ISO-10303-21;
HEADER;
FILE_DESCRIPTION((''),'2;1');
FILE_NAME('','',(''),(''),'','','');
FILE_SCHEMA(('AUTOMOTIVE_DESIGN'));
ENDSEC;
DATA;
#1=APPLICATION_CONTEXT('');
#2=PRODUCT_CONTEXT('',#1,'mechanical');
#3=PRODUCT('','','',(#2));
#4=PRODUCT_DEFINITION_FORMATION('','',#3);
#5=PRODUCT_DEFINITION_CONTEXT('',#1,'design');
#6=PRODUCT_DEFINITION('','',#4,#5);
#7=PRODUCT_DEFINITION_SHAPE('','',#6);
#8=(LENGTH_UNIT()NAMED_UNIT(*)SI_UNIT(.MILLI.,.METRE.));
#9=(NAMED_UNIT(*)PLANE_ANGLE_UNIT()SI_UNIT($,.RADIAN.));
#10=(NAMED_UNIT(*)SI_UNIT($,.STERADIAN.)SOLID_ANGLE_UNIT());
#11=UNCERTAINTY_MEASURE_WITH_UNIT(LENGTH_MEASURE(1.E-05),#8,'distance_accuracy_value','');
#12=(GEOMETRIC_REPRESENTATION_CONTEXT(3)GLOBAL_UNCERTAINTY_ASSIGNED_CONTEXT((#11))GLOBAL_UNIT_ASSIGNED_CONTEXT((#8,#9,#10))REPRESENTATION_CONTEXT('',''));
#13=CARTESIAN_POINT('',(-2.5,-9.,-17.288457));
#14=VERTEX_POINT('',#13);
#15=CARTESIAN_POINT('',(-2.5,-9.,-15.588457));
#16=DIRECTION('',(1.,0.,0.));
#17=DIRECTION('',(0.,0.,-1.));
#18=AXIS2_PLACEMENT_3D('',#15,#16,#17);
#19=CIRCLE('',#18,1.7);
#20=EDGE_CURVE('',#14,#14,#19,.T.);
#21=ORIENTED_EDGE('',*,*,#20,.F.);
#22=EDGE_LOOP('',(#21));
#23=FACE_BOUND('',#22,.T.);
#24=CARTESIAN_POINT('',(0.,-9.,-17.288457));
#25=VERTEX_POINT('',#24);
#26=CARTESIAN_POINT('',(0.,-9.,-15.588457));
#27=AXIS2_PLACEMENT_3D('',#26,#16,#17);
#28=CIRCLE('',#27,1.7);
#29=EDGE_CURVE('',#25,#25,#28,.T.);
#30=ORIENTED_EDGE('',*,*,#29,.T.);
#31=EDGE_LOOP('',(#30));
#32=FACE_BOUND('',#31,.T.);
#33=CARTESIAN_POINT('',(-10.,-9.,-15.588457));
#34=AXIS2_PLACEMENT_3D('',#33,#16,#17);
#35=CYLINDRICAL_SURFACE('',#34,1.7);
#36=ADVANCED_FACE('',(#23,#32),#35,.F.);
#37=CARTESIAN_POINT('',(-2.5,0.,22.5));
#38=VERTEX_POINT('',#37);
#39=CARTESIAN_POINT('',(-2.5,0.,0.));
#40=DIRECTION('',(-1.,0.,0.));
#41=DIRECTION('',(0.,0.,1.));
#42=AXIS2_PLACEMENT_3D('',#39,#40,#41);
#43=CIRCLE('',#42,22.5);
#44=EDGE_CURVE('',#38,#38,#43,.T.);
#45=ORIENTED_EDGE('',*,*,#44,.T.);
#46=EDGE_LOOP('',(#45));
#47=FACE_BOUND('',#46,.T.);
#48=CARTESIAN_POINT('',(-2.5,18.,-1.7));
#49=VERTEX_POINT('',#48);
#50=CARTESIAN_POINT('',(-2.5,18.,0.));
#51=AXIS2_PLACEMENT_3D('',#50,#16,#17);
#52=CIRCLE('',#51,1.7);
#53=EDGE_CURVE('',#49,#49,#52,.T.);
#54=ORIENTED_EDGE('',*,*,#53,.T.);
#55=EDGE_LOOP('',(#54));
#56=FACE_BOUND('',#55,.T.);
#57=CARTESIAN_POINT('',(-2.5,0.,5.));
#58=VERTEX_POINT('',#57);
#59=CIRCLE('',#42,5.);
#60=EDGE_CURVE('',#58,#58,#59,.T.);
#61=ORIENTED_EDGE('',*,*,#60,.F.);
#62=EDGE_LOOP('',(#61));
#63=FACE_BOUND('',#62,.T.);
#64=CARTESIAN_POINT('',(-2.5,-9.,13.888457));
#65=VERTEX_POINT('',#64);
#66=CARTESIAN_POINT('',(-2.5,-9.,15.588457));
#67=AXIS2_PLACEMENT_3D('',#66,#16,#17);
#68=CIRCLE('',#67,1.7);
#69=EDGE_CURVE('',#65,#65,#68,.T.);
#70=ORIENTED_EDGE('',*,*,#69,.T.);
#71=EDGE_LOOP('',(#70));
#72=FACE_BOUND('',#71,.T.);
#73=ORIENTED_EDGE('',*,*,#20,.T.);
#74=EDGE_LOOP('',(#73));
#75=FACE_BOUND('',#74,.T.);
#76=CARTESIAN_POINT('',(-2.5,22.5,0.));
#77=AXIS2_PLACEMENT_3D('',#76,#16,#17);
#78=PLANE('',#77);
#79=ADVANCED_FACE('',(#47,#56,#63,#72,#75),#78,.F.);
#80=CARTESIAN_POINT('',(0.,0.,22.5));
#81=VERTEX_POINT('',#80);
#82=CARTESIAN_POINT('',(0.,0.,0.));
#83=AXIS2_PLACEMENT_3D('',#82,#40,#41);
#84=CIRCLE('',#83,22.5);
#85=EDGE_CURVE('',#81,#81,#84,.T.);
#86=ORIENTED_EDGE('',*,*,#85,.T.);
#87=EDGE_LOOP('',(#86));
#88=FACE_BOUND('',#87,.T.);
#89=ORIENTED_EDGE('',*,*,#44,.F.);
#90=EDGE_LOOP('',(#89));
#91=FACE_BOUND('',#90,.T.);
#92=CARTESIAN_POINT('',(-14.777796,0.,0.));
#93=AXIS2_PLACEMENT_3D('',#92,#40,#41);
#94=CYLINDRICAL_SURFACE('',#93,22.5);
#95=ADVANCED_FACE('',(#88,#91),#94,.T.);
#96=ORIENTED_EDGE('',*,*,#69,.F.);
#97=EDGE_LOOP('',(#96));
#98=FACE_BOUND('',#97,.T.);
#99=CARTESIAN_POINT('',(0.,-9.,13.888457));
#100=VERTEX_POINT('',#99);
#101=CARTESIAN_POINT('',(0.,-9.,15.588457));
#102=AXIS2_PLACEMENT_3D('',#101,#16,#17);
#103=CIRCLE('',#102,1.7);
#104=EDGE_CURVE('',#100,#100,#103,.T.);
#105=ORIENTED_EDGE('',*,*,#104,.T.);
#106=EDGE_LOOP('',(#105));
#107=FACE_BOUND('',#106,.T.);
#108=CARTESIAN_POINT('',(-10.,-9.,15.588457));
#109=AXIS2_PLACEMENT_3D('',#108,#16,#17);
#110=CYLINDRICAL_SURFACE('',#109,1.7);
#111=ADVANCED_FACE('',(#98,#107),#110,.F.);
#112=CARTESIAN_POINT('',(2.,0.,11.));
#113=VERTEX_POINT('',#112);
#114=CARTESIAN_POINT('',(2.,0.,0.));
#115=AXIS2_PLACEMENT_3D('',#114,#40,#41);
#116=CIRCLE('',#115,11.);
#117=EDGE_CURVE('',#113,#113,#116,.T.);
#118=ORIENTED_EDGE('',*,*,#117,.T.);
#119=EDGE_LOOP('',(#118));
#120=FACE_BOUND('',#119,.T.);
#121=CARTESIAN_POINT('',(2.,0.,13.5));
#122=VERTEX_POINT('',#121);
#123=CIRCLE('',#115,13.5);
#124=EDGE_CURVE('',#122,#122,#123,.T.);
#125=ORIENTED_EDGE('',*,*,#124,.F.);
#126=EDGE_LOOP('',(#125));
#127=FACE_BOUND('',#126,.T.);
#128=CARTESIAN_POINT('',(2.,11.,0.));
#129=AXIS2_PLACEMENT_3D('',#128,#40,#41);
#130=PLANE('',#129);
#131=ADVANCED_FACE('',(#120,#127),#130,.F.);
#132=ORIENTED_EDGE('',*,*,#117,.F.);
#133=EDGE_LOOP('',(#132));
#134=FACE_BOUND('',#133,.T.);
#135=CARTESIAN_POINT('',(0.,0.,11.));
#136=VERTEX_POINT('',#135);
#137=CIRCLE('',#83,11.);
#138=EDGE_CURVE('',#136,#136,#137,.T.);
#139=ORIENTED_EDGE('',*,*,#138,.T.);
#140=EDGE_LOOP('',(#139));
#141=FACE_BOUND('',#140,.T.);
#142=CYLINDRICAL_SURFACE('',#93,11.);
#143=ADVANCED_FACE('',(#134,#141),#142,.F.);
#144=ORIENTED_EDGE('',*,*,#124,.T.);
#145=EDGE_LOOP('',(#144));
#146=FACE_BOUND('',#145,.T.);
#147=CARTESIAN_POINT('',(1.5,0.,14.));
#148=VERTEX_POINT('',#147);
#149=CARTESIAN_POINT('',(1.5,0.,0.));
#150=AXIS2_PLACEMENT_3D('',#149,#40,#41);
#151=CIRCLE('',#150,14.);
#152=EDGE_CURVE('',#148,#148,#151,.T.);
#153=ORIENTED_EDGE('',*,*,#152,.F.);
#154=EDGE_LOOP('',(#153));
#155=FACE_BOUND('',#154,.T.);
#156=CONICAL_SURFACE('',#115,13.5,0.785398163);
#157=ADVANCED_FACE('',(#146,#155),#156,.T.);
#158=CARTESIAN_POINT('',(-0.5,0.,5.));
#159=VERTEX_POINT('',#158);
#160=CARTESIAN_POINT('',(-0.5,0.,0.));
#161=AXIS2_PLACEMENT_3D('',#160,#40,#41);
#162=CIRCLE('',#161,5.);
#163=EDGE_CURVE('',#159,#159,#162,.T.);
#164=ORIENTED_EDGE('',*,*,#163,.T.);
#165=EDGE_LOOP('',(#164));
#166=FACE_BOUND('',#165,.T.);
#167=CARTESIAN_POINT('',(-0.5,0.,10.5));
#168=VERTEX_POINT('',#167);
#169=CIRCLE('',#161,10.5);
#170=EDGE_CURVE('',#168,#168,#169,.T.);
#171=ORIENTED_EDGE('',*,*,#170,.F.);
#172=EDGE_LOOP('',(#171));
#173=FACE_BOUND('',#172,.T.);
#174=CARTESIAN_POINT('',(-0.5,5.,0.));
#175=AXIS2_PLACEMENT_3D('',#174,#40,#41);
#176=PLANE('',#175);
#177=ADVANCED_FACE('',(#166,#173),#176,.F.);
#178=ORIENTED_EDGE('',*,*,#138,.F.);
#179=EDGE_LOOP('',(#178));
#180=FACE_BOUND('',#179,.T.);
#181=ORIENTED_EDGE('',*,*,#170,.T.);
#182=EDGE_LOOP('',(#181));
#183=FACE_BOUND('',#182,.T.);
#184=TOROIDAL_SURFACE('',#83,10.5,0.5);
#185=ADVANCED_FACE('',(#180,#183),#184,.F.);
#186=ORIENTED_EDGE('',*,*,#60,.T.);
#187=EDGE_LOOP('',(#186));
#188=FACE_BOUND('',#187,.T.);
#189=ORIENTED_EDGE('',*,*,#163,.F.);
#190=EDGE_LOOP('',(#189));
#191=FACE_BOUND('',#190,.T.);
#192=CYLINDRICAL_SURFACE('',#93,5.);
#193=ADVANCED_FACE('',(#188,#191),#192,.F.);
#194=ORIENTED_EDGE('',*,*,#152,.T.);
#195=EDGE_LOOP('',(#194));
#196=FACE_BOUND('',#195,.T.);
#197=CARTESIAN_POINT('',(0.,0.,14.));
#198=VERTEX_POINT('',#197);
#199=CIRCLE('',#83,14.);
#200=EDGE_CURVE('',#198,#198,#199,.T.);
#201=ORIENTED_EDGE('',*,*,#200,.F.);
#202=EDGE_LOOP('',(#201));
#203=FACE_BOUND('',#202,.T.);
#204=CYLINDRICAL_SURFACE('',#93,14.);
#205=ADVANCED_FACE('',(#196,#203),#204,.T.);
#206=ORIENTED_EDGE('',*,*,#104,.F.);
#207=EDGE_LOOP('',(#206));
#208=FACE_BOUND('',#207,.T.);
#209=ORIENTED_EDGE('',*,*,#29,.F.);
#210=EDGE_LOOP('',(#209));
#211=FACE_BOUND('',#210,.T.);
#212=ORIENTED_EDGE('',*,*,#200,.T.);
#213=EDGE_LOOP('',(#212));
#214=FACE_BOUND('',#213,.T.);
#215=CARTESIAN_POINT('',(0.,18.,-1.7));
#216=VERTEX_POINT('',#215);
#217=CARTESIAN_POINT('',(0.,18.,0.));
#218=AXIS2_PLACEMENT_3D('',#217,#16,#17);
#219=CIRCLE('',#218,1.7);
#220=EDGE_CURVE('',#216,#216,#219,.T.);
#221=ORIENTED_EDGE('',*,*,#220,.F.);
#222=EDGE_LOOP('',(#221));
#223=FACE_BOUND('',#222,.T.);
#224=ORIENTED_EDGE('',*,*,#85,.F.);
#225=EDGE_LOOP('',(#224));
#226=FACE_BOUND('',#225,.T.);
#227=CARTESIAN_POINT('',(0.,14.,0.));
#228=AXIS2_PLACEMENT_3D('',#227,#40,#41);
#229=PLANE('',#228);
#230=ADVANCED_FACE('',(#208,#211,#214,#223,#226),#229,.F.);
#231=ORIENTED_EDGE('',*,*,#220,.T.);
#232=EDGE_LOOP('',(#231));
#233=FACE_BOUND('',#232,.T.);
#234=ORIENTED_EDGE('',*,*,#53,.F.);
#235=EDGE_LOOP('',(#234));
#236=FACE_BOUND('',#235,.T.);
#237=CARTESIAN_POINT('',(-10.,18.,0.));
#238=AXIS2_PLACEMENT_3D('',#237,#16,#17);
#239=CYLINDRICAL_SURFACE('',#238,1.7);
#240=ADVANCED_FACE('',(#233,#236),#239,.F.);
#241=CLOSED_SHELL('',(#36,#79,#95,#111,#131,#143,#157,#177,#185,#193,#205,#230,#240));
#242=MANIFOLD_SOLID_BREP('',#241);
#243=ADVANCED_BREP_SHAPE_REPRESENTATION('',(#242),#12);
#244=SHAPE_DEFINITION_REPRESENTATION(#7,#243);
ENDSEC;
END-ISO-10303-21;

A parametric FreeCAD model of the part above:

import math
import FreeCAD as App
import Part
import Sketcher
from FreeCAD import Vector
Q = App.Units.Quantity

doc = App.newDocument("Part")
params = doc.addObject("Spreadsheet::Sheet", "Params")
for row, (alias, value) in enumerate([
    ("sketch1_radius", "0.5 mm"),
    ("sketch1_width", "2 mm"),
    ("sketch1_width2", "1.5 mm"),
    ("sketch1_height", "5.5 mm"),
    ("sketch1_height2", "8.5 mm"),
    ("revolution_angle", "360 deg"),
    ("sketch2_diameter", "3.4 mm"),
    ("pocket1_length", "10 mm"),
], start=1):
    params.set(f"A{row}", alias)
    params.set(f"B{row}", "=" + value)
    params.setAlias(f"B{row}", alias)

body = doc.addObject("PartDesign::Body", "Body")

# Sketch on XY plane
sketch1 = body.newObject("Sketcher::SketchObject", "Sketch")
sketch1.AttachmentSupport = (doc.getObject("XY_Plane"), [""])
sketch1.MapMode = "FlatFace"
sketch1.addGeometry([
    Part.LineSegment(Vector(-0.5, 5, 0), Vector(-0.5, 10.5, 0)),  # 0
    Part.ArcOfCircle(Part.Circle(Vector(0, 10.5, 0), Vector(0, 0, 1), 0.5), math.radians(90), math.radians(180)),  # 1
    Part.LineSegment(Vector(0, 11, 0), Vector(2, 11, 0)),  # 2
    Part.LineSegment(Vector(2, 11, 0), Vector(2, 13.5, 0)),  # 3
    Part.LineSegment(Vector(2, 13.5, 0), Vector(1.5, 14, 0)),  # 4
    Part.LineSegment(Vector(1.5, 14, 0), Vector(0, 14, 0)),  # 5
    Part.LineSegment(Vector(0, 14, 0), Vector(0, 22.5, 0)),  # 6
    Part.LineSegment(Vector(0, 22.5, 0), Vector(-2.5, 22.5, 0)),  # 7
    Part.LineSegment(Vector(-2.5, 22.5, 0), Vector(-2.5, 5, 0)),  # 8
    Part.LineSegment(Vector(-2.5, 5, 0), Vector(-0.5, 5, 0)),  # 9
], False)
sketch1.addConstraint([
    Sketcher.Constraint("Tangent", 0, 2, 1, 2),
    Sketcher.Constraint("Tangent", 1, 1, 2, 1),
    Sketcher.Constraint("Coincident", 2, 2, 3, 1),
    Sketcher.Constraint("Coincident", 3, 2, 4, 1),
    Sketcher.Constraint("Coincident", 4, 2, 5, 1),
    Sketcher.Constraint("Coincident", 5, 2, 6, 1),
    Sketcher.Constraint("Coincident", 6, 2, 7, 1),
    Sketcher.Constraint("Coincident", 7, 2, 8, 1),
    Sketcher.Constraint("Coincident", 8, 2, 9, 1),
    Sketcher.Constraint("Coincident", 9, 2, 0, 1),
    Sketcher.Constraint("Vertical", 0),
    Sketcher.Constraint("Horizontal", 2),
    Sketcher.Constraint("Vertical", 3),
    Sketcher.Constraint("Horizontal", 5),
    Sketcher.Constraint("Vertical", 6),
    Sketcher.Constraint("Horizontal", 7),
    Sketcher.Constraint("Vertical", 8),
    Sketcher.Constraint("Horizontal", 9),
    Sketcher.Constraint("PointOnObject", 1, 3, -2),
    Sketcher.Constraint("PointOnObject", 5, 2, -2),
    Sketcher.Constraint("Equal", 2, 9),
    Sketcher.Constraint("Equal", 7, 3),
    Sketcher.Constraint("Radius", 1, 0.5),
    Sketcher.Constraint("DistanceX", 2, 1, 2, 2, 2.0),
    Sketcher.Constraint("Angle", 4, Q("135 deg")),
    Sketcher.Constraint("DistanceX", 5, 2, 5, 1, 1.5),
    Sketcher.Constraint("DistanceY", 0, 1, 0, 2, 5.5),
    Sketcher.Constraint("DistanceY", 6, 1, 6, 2, 8.5),
    Sketcher.Constraint("DistanceY", -1, 1, 1, 1, 11.0),
])
sketch1.setExpression("Constraints[22]", "Params.sketch1_radius")
sketch1.setExpression("Constraints[23]", "Params.sketch1_width")
sketch1.setExpression("Constraints[25]", "Params.sketch1_width2")
sketch1.setExpression("Constraints[26]", "Params.sketch1_height")
sketch1.setExpression("Constraints[27]", "Params.sketch1_height2")
revolution = body.newObject("PartDesign::Revolution", "Revolution")
revolution.Profile = sketch1
revolution.ReferenceAxis = (sketch1, ["H_Axis"])
revolution.setExpression("Angle", "Params.revolution_angle")

# Sketch on YZ plane
sketch2 = body.newObject("Sketcher::SketchObject", "Sketch001")
sketch2.AttachmentSupport = (doc.getObject("YZ_Plane"), [""])
sketch2.MapMode = "FlatFace"
sketch2.addGeometry([
    Part.Circle(Vector(18, 0, 0), Vector(0, 0, 1), 1.7),
    Part.Circle(Vector(-9, -15.6, 0), Vector(0, 0, 1), 1.7),
    Part.Circle(Vector(-9, 15.6, 0), Vector(0, 0, 1), 1.7),
], False)
sketch2.addConstraint([
    Sketcher.Constraint("Equal", 0, 1),
    Sketcher.Constraint("Equal", 1, 2),
    Sketcher.Constraint("Symmetric", 1, 3, 2, 3, -1),
    Sketcher.Constraint("PointOnObject", 0, 3, -1),
    Sketcher.Constraint("Diameter", 0, 3.4),
    Sketcher.Constraint("DistanceX", -1, 1, 0, 3, 18.0),
    Sketcher.Constraint("DistanceX", 1, 3, -1, 1, 9.0),
    Sketcher.Constraint("DistanceY", 1, 3, -1, 1, 15.588457),
])
sketch2.setExpression("Constraints[4]", "Params.sketch2_diameter")
pocket1 = body.newObject("PartDesign::Pocket", "Pocket")
pocket1.Profile = sketch2
pocket1.setExpression("Length", "Params.pocket1_length")

doc.recompute()
